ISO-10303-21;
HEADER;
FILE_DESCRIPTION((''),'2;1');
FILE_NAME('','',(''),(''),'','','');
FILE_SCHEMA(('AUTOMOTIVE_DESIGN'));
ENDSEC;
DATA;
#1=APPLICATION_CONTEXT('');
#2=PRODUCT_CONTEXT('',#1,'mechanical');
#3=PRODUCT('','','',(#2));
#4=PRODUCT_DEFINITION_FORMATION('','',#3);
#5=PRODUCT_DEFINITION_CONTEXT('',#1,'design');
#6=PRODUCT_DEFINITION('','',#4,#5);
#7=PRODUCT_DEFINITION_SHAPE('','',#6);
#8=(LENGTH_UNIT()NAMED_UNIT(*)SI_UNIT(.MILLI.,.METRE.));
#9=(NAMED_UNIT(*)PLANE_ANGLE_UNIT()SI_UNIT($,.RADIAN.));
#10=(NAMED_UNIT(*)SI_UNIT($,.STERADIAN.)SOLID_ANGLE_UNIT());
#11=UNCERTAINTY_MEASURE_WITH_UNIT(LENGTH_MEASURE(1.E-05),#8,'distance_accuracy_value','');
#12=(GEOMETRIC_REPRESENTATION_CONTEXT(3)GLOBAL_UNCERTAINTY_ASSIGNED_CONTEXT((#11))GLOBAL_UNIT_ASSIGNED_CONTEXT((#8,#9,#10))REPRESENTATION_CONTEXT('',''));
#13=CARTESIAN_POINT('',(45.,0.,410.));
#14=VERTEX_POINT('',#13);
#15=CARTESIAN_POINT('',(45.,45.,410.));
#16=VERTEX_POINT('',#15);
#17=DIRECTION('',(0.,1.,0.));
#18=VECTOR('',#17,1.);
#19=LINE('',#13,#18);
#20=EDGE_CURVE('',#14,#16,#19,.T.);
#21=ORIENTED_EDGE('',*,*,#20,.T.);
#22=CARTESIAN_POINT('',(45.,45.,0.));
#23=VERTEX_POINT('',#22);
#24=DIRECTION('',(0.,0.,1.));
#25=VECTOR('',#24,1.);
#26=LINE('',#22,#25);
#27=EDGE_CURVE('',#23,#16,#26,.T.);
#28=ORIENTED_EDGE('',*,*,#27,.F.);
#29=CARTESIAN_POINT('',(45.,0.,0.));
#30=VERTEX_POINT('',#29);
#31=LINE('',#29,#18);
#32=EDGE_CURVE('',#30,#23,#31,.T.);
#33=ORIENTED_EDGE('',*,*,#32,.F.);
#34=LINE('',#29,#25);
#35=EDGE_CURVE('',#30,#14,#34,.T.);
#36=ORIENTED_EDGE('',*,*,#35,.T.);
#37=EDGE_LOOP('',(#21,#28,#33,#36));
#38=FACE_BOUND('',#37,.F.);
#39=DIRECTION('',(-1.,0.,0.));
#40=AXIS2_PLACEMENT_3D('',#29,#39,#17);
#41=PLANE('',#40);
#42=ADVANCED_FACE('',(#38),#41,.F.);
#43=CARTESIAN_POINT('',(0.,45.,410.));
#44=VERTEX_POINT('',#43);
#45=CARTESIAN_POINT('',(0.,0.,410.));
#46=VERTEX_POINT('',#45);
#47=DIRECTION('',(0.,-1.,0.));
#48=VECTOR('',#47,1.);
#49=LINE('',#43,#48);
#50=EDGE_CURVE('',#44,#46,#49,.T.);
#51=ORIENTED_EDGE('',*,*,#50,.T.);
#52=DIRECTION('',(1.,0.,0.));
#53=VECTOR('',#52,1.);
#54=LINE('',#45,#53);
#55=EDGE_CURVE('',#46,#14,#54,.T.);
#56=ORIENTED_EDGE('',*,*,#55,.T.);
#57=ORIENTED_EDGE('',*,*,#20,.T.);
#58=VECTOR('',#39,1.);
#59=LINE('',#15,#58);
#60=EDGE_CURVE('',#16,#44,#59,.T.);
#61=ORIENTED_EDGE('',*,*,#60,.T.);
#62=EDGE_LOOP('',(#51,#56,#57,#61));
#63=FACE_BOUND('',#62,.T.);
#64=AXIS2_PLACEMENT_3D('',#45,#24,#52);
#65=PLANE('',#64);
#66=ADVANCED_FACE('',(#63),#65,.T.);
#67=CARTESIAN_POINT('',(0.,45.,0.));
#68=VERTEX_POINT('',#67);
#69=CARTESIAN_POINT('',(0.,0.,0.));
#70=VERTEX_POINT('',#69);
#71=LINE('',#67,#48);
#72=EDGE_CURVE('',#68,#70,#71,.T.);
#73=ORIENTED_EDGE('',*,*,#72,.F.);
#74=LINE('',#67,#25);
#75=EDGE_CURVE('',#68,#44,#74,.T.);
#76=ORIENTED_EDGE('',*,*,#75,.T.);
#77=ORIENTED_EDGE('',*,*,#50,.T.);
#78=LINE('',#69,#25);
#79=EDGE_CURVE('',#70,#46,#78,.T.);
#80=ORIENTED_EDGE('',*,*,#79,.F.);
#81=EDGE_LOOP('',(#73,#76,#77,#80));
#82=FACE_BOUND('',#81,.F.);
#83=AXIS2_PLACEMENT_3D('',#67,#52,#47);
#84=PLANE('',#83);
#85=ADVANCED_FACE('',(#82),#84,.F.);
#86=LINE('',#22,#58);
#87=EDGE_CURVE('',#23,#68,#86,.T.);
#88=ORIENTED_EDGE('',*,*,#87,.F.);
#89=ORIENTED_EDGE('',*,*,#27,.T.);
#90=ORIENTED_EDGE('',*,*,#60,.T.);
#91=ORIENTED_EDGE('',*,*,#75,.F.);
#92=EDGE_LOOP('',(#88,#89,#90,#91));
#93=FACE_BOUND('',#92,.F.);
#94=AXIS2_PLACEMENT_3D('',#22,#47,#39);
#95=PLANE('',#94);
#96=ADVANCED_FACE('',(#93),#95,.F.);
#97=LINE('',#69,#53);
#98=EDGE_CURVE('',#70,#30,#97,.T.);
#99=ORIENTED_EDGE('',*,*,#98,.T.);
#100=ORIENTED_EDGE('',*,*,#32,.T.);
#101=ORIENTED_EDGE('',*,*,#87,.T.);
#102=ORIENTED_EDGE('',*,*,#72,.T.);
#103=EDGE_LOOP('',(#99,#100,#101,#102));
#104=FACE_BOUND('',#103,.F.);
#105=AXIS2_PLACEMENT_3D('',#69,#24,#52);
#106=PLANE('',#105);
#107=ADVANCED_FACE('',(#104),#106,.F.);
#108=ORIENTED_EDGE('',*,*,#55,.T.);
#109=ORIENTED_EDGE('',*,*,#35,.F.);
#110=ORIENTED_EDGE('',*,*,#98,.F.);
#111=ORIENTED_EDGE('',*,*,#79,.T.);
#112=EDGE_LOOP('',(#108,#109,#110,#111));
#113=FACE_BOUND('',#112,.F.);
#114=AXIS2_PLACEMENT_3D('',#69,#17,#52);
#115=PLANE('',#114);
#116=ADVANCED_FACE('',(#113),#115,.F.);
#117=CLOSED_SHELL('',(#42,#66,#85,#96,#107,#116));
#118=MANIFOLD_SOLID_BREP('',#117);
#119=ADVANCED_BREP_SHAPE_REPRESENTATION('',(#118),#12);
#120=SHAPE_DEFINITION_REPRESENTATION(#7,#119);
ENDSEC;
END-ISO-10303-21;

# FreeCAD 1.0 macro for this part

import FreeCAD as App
import Part
import Sketcher
from FreeCAD import Vector
Q = App.Units.Quantity


def add_polygon(sketch, points):
    """Adds a closed chain of lines whose ends are joined by coincident constraints."""
    first, n = sketch.GeometryCount, len(points)
    for a, b in zip(points, points[1:] + points[:1]):
        sketch.addGeometry(Part.LineSegment(App.Vector(*a, 0), App.Vector(*b, 0)), False)
    for i in range(n):
        sketch.addConstraint(Sketcher.Constraint("Coincident", first + i, 2, first + (i + 1) % n, 1))

doc = App.newDocument("Part")
body = doc.addObject("PartDesign::Body", "Body")

# Sketch on XY plane
sketch1 = doc.addObject("Sketcher::SketchObject", "Sketch")
body.addObject(sketch1)
sketch1.AttachmentSupport = (doc.XY_Plane, [""])
sketch1.MapMode = "FlatFace"
add_polygon(sketch1, [(0, 45), (0, 0), (45, 0), (45, 45)])  # lines 0-3
sketch1.addConstraint(Sketcher.Constraint("Vertical", 0))
sketch1.addConstraint(Sketcher.Constraint("Horizontal", 1))
sketch1.addConstraint(Sketcher.Constraint("Vertical", 2))
sketch1.addConstraint(Sketcher.Constraint("Horizontal", 3))
sketch1.addConstraint(Sketcher.Constraint("Coincident", 0, 2, -1, 1))
sketch1.addConstraint(Sketcher.Constraint("Equal", 3, 0))
sketch1.addConstraint(Sketcher.Constraint("DistanceX", 1, 1, 1, 2, Q("45 mm")))
pad1 = doc.addObject("PartDesign::Pad", "Pad")
body.addObject(pad1)
pad1.Profile = sketch1
pad1.Length = 410

doc.recompute()
